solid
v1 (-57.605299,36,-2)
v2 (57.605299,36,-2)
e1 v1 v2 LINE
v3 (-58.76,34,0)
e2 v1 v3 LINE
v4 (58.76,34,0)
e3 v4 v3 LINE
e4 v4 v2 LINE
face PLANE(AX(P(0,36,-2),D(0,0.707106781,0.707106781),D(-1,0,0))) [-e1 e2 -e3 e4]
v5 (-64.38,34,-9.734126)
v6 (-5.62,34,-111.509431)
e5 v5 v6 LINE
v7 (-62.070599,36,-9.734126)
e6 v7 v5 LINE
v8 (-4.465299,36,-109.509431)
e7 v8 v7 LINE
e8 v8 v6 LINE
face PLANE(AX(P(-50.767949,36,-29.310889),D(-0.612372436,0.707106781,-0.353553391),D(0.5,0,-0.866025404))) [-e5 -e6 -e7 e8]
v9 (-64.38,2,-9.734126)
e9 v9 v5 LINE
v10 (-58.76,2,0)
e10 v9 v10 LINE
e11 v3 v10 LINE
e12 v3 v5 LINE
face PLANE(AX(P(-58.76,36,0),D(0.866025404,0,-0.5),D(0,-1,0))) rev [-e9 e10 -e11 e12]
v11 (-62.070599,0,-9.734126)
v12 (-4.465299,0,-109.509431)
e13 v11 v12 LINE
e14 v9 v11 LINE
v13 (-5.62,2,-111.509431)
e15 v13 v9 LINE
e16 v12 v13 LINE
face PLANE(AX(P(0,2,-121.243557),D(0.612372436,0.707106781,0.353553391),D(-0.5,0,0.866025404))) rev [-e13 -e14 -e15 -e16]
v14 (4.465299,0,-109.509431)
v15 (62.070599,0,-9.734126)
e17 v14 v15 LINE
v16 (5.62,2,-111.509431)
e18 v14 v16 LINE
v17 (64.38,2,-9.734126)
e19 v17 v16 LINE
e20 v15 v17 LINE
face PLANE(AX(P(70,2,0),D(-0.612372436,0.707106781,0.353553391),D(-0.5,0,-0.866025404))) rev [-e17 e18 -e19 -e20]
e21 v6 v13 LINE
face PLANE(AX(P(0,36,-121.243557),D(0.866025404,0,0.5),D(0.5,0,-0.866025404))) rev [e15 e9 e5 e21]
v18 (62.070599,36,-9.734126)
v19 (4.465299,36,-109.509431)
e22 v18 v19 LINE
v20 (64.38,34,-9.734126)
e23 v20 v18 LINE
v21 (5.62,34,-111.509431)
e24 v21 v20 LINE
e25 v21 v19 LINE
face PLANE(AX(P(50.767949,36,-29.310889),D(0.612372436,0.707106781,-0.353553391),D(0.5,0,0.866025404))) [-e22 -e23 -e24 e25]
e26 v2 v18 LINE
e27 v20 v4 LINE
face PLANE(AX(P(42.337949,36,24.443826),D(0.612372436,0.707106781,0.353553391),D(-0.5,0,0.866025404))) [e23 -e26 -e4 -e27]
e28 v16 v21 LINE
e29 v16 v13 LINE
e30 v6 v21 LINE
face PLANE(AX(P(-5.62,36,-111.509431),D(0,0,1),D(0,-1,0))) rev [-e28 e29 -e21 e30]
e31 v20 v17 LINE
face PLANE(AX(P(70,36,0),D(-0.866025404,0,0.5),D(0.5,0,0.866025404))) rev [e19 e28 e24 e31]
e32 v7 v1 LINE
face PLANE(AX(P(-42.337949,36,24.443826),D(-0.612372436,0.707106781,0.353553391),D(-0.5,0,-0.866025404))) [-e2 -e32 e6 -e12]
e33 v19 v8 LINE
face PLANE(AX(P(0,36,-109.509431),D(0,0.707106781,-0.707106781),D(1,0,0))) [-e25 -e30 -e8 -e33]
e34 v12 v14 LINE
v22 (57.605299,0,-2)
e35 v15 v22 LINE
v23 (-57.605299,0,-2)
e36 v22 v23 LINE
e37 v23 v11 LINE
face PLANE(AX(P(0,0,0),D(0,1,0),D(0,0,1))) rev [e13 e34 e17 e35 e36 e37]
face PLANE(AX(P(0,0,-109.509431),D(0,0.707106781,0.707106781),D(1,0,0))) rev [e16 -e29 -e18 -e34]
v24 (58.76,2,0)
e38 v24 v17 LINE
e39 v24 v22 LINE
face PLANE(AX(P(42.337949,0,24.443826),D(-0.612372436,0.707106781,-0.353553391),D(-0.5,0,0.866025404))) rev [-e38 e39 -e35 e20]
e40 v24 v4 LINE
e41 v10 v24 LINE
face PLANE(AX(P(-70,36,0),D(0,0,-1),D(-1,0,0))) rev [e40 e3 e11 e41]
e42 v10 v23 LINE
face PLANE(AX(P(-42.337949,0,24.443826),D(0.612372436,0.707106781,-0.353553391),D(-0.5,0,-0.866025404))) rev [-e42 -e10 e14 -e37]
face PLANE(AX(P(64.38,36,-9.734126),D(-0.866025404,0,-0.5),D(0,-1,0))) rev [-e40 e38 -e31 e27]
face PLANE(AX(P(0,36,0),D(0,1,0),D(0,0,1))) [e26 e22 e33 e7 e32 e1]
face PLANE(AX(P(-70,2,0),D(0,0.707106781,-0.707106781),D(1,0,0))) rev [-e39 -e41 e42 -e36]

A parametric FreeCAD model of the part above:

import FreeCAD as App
import Part
import Sketcher
Q = App.Units.Quantity


def edges_at(feature, points):
    """Names of the edges that pass closest to the given points."""
    edges = feature.Shape.Edges
    near = lambda p: min(range(len(edges)), key=lambda i: edges[i].distToShape(Part.Vertex(*p))[0])
    return sorted({f"Edge{near(p) + 1}" for p in points})

doc = App.newDocument("Part")
params = doc.addObject("Spreadsheet::Sheet", "Params")
for row, (alias, value) in enumerate([
    ("sketch1_width", "140 mm"),
    ("pad1_length", "36 mm"),
    ("chamfer_size", "11.24 mm"),
    ("chamfer2_size", "11.24 mm"),
    ("chamfer3_size", "11.24 mm"),
    ("chamfer4_size", "2 mm"),
    ("chamfer5_size", "2 mm"),
], start=1):
    params.set(f"A{row}", alias)
    params.set(f"B{row}", "=" + value)
    params.setAlias(f"B{row}", alias)

body = doc.addObject("PartDesign::Body", "Body")

sketch1 = body.newObject("Sketcher::SketchObject", "Sketch")
sketch1.AttachmentSupport = (doc.getObject("XZ_Plane"), [""])
sketch1.MapMode = "FlatFace"
sketch1.addGeometry(Part.LineSegment(App.Vector(-70, 0, 0), App.Vector(70, 0, 0)), False)
sketch1.addGeometry(Part.LineSegment(App.Vector(70, 0, 0), App.Vector(0, -121.243557, 0)), False)
sketch1.addGeometry(Part.LineSegment(App.Vector(0, -121.243557, 0), App.Vector(-70, 0, 0)), False)
sketch1.addConstraint(Sketcher.Constraint("Coincident", 0, 2, 1, 1))
sketch1.addConstraint(Sketcher.Constraint("Coincident", 1, 2, 2, 1))
sketch1.addConstraint(Sketcher.Constraint("Coincident", 2, 2, 0, 1))
sketch1.addConstraint(Sketcher.Constraint("Horizontal", 0))
sketch1.addConstraint(Sketcher.Constraint("Symmetric", 0, 2, 2, 2, -1, 1))
sketch1.addConstraint(Sketcher.Constraint("PointOnObject", 1, 2, -2))
sketch1.addConstraint(Sketcher.Constraint("DistanceX", 0, 1, 0, 2, 140.0))
sketch1.addConstraint(Sketcher.Constraint("Angle", 1, Q("-120 deg")))
sketch1.setExpression("Constraints[6]", "Params.sketch1_width")
pad1 = body.newObject("PartDesign::Pad", "Pad")
pad1.Profile = sketch1
pad1.setExpression("Length", "Params.pad1_length")
pad1.Reversed = True
doc.recompute()

chamfer = body.newObject("PartDesign::Chamfer", "Chamfer")
chamfer.Base = (pad1, edges_at(pad1, [(70, 18, 0)]))
chamfer.setExpression("Size", "Params.chamfer_size")
doc.recompute()

chamfer2 = body.newObject("PartDesign::Chamfer", "Chamfer001")
chamfer2.Base = (chamfer, edges_at(chamfer, [(-70, 18, 0)]))
chamfer2.setExpression("Size", "Params.chamfer2_size")
doc.recompute()

chamfer3 = body.newObject("PartDesign::Chamfer", "Chamfer002")
chamfer3.Base = (chamfer2, edges_at(chamfer2, [(0, 18, -121.244)]))
chamfer3.setExpression("Size", "Params.chamfer3_size")
doc.recompute()

chamfer4 = body.newObject("PartDesign::Chamfer", "Chamfer003")
chamfer4.Base = (chamfer3, edges_at(chamfer3, [
    (0, 36, 0),
    (-35, 36, -60.622),
    (35, 36, -60.622),
    (61.57, 36, -4.867),
    (0, 36, -111.509),
    (-61.57, 36, -4.867),
]))
chamfer4.setExpression("Size", "Params.chamfer4_size")
doc.recompute()

chamfer5 = body.newObject("PartDesign::Chamfer", "Chamfer004")
chamfer5.Base = (chamfer4, edges_at(chamfer4, [
    (0, 0, 0),
    (35, 0, -60.622),
    (-35, 0, -60.622),
    (61.57, 0, -4.867),
    (0, 0, -111.509),
    (-61.57, 0, -4.867),
]))
chamfer5.setExpression("Size", "Params.chamfer5_size")

doc.recompute()
